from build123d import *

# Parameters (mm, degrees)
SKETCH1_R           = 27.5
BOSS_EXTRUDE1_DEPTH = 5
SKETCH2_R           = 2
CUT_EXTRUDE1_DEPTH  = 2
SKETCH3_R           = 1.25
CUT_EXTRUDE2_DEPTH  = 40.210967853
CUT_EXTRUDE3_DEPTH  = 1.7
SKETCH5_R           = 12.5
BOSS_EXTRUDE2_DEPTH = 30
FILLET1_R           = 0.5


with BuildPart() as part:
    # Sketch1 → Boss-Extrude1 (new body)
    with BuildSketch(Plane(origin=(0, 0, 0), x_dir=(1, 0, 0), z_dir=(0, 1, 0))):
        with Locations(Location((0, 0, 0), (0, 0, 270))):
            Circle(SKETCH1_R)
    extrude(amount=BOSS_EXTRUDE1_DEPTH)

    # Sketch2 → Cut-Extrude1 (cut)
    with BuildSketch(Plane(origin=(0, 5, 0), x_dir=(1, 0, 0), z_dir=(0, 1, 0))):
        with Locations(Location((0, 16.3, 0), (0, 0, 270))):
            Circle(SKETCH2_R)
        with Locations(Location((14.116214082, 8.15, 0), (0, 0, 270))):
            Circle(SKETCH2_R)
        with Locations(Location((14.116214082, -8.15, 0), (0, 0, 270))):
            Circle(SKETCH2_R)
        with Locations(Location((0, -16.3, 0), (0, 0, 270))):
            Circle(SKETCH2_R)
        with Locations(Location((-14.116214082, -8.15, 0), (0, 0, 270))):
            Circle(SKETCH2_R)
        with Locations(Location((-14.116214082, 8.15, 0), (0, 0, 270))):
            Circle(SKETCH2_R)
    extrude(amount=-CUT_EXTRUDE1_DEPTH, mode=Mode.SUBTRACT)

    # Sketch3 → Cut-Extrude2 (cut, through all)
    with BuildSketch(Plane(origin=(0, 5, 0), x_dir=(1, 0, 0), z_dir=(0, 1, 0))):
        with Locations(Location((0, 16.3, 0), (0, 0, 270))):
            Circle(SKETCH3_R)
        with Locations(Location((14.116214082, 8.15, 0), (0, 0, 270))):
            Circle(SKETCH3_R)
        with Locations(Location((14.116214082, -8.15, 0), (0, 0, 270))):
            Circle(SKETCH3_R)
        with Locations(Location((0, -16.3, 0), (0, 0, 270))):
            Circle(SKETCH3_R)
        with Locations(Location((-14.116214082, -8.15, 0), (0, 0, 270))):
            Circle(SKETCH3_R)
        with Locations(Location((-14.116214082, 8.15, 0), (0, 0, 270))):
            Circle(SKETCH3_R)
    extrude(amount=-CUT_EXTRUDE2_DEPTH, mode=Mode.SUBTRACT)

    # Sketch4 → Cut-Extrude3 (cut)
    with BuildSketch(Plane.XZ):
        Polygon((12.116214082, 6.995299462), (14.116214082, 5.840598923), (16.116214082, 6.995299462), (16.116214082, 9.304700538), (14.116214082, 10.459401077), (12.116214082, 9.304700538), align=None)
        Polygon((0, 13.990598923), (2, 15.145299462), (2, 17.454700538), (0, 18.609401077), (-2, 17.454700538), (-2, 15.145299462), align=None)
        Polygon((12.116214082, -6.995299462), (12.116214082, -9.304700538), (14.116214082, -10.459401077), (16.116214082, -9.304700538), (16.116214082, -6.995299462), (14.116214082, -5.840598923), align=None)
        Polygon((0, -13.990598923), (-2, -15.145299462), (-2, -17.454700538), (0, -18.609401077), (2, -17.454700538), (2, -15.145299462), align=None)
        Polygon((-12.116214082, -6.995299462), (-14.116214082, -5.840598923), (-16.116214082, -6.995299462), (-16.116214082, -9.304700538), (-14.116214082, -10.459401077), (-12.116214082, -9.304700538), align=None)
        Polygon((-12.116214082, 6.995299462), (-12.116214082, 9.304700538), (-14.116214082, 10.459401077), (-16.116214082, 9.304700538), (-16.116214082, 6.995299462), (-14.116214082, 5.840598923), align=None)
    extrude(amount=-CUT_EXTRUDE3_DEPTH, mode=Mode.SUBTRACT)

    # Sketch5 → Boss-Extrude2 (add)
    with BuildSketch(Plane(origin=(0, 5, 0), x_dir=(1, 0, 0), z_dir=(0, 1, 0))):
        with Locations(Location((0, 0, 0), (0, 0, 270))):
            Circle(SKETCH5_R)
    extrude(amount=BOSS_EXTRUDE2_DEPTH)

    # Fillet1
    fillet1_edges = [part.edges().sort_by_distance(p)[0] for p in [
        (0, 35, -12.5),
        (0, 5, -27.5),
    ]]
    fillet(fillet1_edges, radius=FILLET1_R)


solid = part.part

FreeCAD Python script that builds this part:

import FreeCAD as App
import Part
import Sketcher
from FreeCAD import Vector
Q = App.Units.Quantity


def edges_at(feature, points):
    """Names of the edges that pass closest to the given points."""
    edges = feature.Shape.Edges
    near = lambda p: min(range(len(edges)), key=lambda i: edges[i].distToShape(Part.Vertex(*p))[0])
    return sorted({f"Edge{near(p) + 1}" for p in points})


def add_polygon(sketch, points):
    """Adds a closed chain of lines whose ends are joined by coincident constraints."""
    first, n = sketch.GeometryCount, len(points)
    for a, b in zip(points, points[1:] + points[:1]):
        sketch.addGeometry(Part.LineSegment(App.Vector(*a, 0), App.Vector(*b, 0)), False)
    for i in range(n):
        sketch.addConstraint(Sketcher.Constraint("Coincident", first + i, 2, first + (i + 1) % n, 1))

doc = App.newDocument("Part")
body = doc.addObject("PartDesign::Body", "Body")

# Sketch on XZ plane
sketch1 = doc.addObject("Sketcher::SketchObject", "Sketch")
body.addObject(sketch1)
sketch1.AttachmentSupport = (doc.XZ_Plane, [""])
sketch1.MapMode = "FlatFace"
sketch1.addGeometry(Part.Circle(Vector(0, 0, 0), Vector(0, 0, 1), 28), False)
sketch1.addConstraint([
    Sketcher.Constraint("Coincident", 0, 3, -1, 1),
    Sketcher.Constraint("Diameter", 0, Q("55 mm")),
])
pad1 = doc.addObject("PartDesign::Pad", "Pad")
body.addObject(pad1)
pad1.Profile = sketch1
pad1.Length = 5
pad1.Reversed = True

# Sketch on XZ plane
sketch2 = doc.addObject("Sketcher::SketchObject", "Sketch001")
body.addObject(sketch2)
sketch2.AttachmentSupport = (doc.XZ_Plane, [""])
sketch2.MapMode = "FlatFace"
sketch2.AttachmentOffset = App.Placement(Vector(0, 0, -5), App.Rotation())
sketch2.addGeometry([
    Part.Circle(Vector(0, -16.3, 0), Vector(0, 0, 1), 2),  # 0
    Part.Circle(Vector(14.1, -8.2, 0), Vector(0, 0, 1), 2),  # 1
    Part.Circle(Vector(14.1, 8.2, 0), Vector(0, 0, 1), 2),  # 2
    Part.Circle(Vector(0, 16.3, 0), Vector(0, 0, 1), 2),  # 3
    Part.Circle(Vector(-14.1, 8.2, 0), Vector(0, 0, 1), 2),  # 4
    Part.Circle(Vector(-14.1, -8.2, 0), Vector(0, 0, 1), 2),  # 5
], False)
sketch2.addConstraint([
    Sketcher.Constraint("Equal", 0, 1),
    Sketcher.Constraint("Equal", 1, 2),
    Sketcher.Constraint("Equal", 2, 3),
    Sketcher.Constraint("Equal", 3, 4),
    Sketcher.Constraint("Equal", 4, 5),
    Sketcher.Constraint("Symmetric", 0, 3, 3, 3, -1, 1),
    Sketcher.Constraint("Symmetric", 1, 3, 4, 3, -1, 1),
    Sketcher.Constraint("Symmetric", 2, 3, 5, 3, -1, 1),
    Sketcher.Constraint("Symmetric", 2, 3, 4, 3, -2),
    Sketcher.Constraint("PointOnObject", 0, 3, -2),
    Sketcher.Constraint("Diameter", 0, Q("4 mm")),
    Sketcher.Constraint("DistanceY", 0, 3, -1, 1, Q("16.3 mm")),
    Sketcher.Constraint("DistanceY", 1, 3, 2, 3, Q("16.3 mm")),
    Sketcher.Constraint("DistanceX", 4, 3, 2, 3, Q("28.232428 mm")),
])
pocket1 = doc.addObject("PartDesign::Pocket", "Pocket")
body.addObject(pocket1)
pocket1.Profile = sketch2
pocket1.Length = 2
pocket1.Reversed = True

# Sketch on XZ plane
sketch3 = doc.addObject("Sketcher::SketchObject", "Sketch002")
body.addObject(sketch3)
sketch3.AttachmentSupport = (doc.XZ_Plane, [""])
sketch3.MapMode = "FlatFace"
sketch3.AttachmentOffset = App.Placement(Vector(0, 0, -5), App.Rotation())
sketch3.addGeometry([
    Part.Circle(Vector(0, -16.3, 0), Vector(0, 0, 1), 1.2),  # 0
    Part.Circle(Vector(14.1, -8.2, 0), Vector(0, 0, 1), 1.2),  # 1
    Part.Circle(Vector(14.1, 8.2, 0), Vector(0, 0, 1), 1.2),  # 2
    Part.Circle(Vector(0, 16.3, 0), Vector(0, 0, 1), 1.2),  # 3
    Part.Circle(Vector(-14.1, 8.2, 0), Vector(0, 0, 1), 1.2),  # 4
    Part.Circle(Vector(-14.1, -8.2, 0), Vector(0, 0, 1), 1.2),  # 5
], False)
sketch3.addConstraint([
    Sketcher.Constraint("Equal", 0, 1),
    Sketcher.Constraint("Equal", 1, 2),
    Sketcher.Constraint("Equal", 2, 3),
    Sketcher.Constraint("Equal", 3, 4),
    Sketcher.Constraint("Equal", 4, 5),
    Sketcher.Constraint("Symmetric", 0, 3, 3, 3, -1, 1),
    Sketcher.Constraint("Symmetric", 1, 3, 4, 3, -1, 1),
    Sketcher.Constraint("Symmetric", 2, 3, 5, 3, -1, 1),
    Sketcher.Constraint("Symmetric", 2, 3, 4, 3, -2),
    Sketcher.Constraint("PointOnObject", 0, 3, -2),
    Sketcher.Constraint("Diameter", 0, Q("2.5 mm")),
    Sketcher.Constraint("DistanceY", 0, 3, -1, 1, Q("16.3 mm")),
    Sketcher.Constraint("DistanceY", 1, 3, 2, 3, Q("16.3 mm")),
    Sketcher.Constraint("DistanceX", 4, 3, 2, 3, Q("28.232428 mm")),
])
pocket2 = doc.addObject("PartDesign::Pocket", "Pocket001")
body.addObject(pocket2)
pocket2.Profile = sketch3
pocket2.Type = "ThroughAll"
pocket2.Reversed = True

# Sketch on XZ plane
sketch4 = doc.addObject("Sketcher::SketchObject", "Sketch003")
body.addObject(sketch4)
sketch4.AttachmentSupport = (doc.XZ_Plane, [""])
sketch4.MapMode = "FlatFace"
add_polygon(sketch4, [(12.1, 7), (14.1, 5.8), (16.1, 7), (16.1, 9.3), (14.1, 10.5), (12.1, 9.3)])  # lines 0-5
add_polygon(sketch4, [(0, 14), (2, 15.1), (2, 17.5), (0, 18.6), (-2, 17.5), (-2, 15.1)])  # lines 6-11
add_polygon(sketch4, [(12.1, -7), (12.1, -9.3), (14.1, -10.5), (16.1, -9.3), (16.1, -7), (14.1, -5.8)])  # lines 12-17
add_polygon(sketch4, [(0, -14), (-2, -15.1), (-2, -17.5), (0, -18.6), (2, -17.5), (2, -15.1)])  # lines 18-23
add_polygon(sketch4, [(-12.1, -7), (-14.1, -5.8), (-16.1, -7), (-16.1, -9.3), (-14.1, -10.5), (-12.1, -9.3)])  # lines 24-29
add_polygon(sketch4, [(-12.1, 7), (-12.1, 9.3), (-14.1, 10.5), (-16.1, 9.3), (-16.1, 7), (-14.1, 5.8)])  # lines 30-35
sketch4.addConstraint([
    Sketcher.Constraint("Vertical", 2),
    Sketcher.Constraint("Vertical", 5),
    Sketcher.Constraint("Vertical", 7),
    Sketcher.Constraint("Vertical", 10),
    Sketcher.Constraint("Vertical", 12),
    Sketcher.Constraint("Vertical", 15),
    Sketcher.Constraint("Vertical", 19),
    Sketcher.Constraint("Vertical", 22),
    Sketcher.Constraint("Vertical", 26),
    Sketcher.Constraint("Vertical", 29),
    Sketcher.Constraint("Vertical", 30),
    Sketcher.Constraint("Vertical", 33),
    Sketcher.Constraint("Symmetric", 6, 2, 18, 2, -1, 1),
    Sketcher.Constraint("Symmetric", 8, 2, 20, 2, -1, 1),
    Sketcher.Constraint("Symmetric", 9, 2, 21, 2, -1, 1),
    Sketcher.Constraint("Symmetric", 11, 2, 23, 2, -1, 1),
    Sketcher.Constraint("Symmetric", 0, 2, 24, 2, -1, 1),
    Sketcher.Constraint("Symmetric", 1, 2, 25, 2, -1, 1),
    Sketcher.Constraint("Symmetric", 3, 2, 27, 2, -1, 1),
    Sketcher.Constraint("Symmetric", 4, 2, 28, 2, -1, 1),
    Sketcher.Constraint("Symmetric", 12, 2, 30, 2, -1, 1),
    Sketcher.Constraint("Symmetric", 13, 2, 31, 2, -1, 1),
    Sketcher.Constraint("Symmetric", 14, 2, 32, 2, -1, 1),
    Sketcher.Constraint("Symmetric", 16, 2, 34, 2, -1, 1),
    Sketcher.Constraint("Symmetric", 7, 2, 9, 2, -2),
    Sketcher.Constraint("Symmetric", 16, 2, 24, 2, -2),
    Sketcher.Constraint("Symmetric", 15, 2, 25, 2, -2),
    Sketcher.Constraint("Symmetric", 13, 2, 27, 2, -2),
    Sketcher.Constraint("Symmetric", 12, 2, 28, 2, -2),
    Sketcher.Constraint("PointOnObject", 8, 2, -2),
    Sketcher.Constraint("PointOnObject", 11, 2, -2),
    Sketcher.Constraint("Parallel", 0, 3),
    Sketcher.Constraint("Parallel", 1, 4),
    Sketcher.Constraint("Parallel", 4, 6),
    Sketcher.Constraint("Parallel", 3, 8),
    Sketcher.Constraint("Parallel", 6, 9),
    Sketcher.Constraint("Parallel", 8, 11),
    Sketcher.Constraint("Parallel", 9, 14),
    Sketcher.Constraint("Parallel", 14, 17),
    Sketcher.Constraint("Parallel", 16, 20),
    Sketcher.Constraint("Parallel", 20, 23),
    Sketcher.Constraint("Parallel", 23, 24),
    Sketcher.Constraint("Parallel", 24, 27),
    Sketcher.Constraint("Parallel", 31, 34),
    Sketcher.Constraint("Parallel", 32, 35),
    Sketcher.Constraint("Horizontal", 2, 2, 4, 2),
    Sketcher.Constraint("Horizontal", 1, 2, 5, 2),
    Sketcher.Constraint("Equal", 5, 7),
    Sketcher.Constraint("Equal", 4, 6),
    Sketcher.Constraint("Angle", 0, Q("-30 deg")),
    Sketcher.Constraint("DistanceX", -1, 1, 6, 2, Q("2 mm")),
    Sketcher.Constraint("DistanceY", 12, 2, 5, 2, Q("16.3 mm")),
    Sketcher.Constraint("DistanceY", 5, 2, 6, 2, Q("8.15 mm")),
    Sketcher.Constraint("DistanceY", 2, 1, 2, 2, Q("2.309401 mm")),
    Sketcher.Constraint("DistanceX", -1, 1, 0, 2, Q("14.116214 mm")),
])
pocket3 = doc.addObject("PartDesign::Pocket", "Pocket002")
body.addObject(pocket3)
pocket3.Profile = sketch4
pocket3.Length = 1.7

# Sketch on XZ plane
sketch5 = doc.addObject("Sketcher::SketchObject", "Sketch004")
body.addObject(sketch5)
sketch5.AttachmentSupport = (doc.XZ_Plane, [""])
sketch5.MapMode = "FlatFace"
sketch5.AttachmentOffset = App.Placement(Vector(0, 0, -5), App.Rotation())
sketch5.addGeometry(Part.Circle(Vector(0, 0, 0), Vector(0, 0, 1), 12), False)
sketch5.addConstraint([
    Sketcher.Constraint("Coincident", 0, 3, -1, 1),
    Sketcher.Constraint("Diameter", 0, Q("25 mm")),
])
pad2 = doc.addObject("PartDesign::Pad", "Pad001")
body.addObject(pad2)
pad2.Profile = sketch5
pad2.Length = 30
pad2.Reversed = True
doc.recompute()

fillet = doc.addObject("PartDesign::Fillet", "Fillet")
body.addObject(fillet)
fillet.Base = (pad2, edges_at(pad2, [(0, 35, -12.5), (0, 5, -27.5)]))
fillet.Radius = 0.5

doc.recompute()
